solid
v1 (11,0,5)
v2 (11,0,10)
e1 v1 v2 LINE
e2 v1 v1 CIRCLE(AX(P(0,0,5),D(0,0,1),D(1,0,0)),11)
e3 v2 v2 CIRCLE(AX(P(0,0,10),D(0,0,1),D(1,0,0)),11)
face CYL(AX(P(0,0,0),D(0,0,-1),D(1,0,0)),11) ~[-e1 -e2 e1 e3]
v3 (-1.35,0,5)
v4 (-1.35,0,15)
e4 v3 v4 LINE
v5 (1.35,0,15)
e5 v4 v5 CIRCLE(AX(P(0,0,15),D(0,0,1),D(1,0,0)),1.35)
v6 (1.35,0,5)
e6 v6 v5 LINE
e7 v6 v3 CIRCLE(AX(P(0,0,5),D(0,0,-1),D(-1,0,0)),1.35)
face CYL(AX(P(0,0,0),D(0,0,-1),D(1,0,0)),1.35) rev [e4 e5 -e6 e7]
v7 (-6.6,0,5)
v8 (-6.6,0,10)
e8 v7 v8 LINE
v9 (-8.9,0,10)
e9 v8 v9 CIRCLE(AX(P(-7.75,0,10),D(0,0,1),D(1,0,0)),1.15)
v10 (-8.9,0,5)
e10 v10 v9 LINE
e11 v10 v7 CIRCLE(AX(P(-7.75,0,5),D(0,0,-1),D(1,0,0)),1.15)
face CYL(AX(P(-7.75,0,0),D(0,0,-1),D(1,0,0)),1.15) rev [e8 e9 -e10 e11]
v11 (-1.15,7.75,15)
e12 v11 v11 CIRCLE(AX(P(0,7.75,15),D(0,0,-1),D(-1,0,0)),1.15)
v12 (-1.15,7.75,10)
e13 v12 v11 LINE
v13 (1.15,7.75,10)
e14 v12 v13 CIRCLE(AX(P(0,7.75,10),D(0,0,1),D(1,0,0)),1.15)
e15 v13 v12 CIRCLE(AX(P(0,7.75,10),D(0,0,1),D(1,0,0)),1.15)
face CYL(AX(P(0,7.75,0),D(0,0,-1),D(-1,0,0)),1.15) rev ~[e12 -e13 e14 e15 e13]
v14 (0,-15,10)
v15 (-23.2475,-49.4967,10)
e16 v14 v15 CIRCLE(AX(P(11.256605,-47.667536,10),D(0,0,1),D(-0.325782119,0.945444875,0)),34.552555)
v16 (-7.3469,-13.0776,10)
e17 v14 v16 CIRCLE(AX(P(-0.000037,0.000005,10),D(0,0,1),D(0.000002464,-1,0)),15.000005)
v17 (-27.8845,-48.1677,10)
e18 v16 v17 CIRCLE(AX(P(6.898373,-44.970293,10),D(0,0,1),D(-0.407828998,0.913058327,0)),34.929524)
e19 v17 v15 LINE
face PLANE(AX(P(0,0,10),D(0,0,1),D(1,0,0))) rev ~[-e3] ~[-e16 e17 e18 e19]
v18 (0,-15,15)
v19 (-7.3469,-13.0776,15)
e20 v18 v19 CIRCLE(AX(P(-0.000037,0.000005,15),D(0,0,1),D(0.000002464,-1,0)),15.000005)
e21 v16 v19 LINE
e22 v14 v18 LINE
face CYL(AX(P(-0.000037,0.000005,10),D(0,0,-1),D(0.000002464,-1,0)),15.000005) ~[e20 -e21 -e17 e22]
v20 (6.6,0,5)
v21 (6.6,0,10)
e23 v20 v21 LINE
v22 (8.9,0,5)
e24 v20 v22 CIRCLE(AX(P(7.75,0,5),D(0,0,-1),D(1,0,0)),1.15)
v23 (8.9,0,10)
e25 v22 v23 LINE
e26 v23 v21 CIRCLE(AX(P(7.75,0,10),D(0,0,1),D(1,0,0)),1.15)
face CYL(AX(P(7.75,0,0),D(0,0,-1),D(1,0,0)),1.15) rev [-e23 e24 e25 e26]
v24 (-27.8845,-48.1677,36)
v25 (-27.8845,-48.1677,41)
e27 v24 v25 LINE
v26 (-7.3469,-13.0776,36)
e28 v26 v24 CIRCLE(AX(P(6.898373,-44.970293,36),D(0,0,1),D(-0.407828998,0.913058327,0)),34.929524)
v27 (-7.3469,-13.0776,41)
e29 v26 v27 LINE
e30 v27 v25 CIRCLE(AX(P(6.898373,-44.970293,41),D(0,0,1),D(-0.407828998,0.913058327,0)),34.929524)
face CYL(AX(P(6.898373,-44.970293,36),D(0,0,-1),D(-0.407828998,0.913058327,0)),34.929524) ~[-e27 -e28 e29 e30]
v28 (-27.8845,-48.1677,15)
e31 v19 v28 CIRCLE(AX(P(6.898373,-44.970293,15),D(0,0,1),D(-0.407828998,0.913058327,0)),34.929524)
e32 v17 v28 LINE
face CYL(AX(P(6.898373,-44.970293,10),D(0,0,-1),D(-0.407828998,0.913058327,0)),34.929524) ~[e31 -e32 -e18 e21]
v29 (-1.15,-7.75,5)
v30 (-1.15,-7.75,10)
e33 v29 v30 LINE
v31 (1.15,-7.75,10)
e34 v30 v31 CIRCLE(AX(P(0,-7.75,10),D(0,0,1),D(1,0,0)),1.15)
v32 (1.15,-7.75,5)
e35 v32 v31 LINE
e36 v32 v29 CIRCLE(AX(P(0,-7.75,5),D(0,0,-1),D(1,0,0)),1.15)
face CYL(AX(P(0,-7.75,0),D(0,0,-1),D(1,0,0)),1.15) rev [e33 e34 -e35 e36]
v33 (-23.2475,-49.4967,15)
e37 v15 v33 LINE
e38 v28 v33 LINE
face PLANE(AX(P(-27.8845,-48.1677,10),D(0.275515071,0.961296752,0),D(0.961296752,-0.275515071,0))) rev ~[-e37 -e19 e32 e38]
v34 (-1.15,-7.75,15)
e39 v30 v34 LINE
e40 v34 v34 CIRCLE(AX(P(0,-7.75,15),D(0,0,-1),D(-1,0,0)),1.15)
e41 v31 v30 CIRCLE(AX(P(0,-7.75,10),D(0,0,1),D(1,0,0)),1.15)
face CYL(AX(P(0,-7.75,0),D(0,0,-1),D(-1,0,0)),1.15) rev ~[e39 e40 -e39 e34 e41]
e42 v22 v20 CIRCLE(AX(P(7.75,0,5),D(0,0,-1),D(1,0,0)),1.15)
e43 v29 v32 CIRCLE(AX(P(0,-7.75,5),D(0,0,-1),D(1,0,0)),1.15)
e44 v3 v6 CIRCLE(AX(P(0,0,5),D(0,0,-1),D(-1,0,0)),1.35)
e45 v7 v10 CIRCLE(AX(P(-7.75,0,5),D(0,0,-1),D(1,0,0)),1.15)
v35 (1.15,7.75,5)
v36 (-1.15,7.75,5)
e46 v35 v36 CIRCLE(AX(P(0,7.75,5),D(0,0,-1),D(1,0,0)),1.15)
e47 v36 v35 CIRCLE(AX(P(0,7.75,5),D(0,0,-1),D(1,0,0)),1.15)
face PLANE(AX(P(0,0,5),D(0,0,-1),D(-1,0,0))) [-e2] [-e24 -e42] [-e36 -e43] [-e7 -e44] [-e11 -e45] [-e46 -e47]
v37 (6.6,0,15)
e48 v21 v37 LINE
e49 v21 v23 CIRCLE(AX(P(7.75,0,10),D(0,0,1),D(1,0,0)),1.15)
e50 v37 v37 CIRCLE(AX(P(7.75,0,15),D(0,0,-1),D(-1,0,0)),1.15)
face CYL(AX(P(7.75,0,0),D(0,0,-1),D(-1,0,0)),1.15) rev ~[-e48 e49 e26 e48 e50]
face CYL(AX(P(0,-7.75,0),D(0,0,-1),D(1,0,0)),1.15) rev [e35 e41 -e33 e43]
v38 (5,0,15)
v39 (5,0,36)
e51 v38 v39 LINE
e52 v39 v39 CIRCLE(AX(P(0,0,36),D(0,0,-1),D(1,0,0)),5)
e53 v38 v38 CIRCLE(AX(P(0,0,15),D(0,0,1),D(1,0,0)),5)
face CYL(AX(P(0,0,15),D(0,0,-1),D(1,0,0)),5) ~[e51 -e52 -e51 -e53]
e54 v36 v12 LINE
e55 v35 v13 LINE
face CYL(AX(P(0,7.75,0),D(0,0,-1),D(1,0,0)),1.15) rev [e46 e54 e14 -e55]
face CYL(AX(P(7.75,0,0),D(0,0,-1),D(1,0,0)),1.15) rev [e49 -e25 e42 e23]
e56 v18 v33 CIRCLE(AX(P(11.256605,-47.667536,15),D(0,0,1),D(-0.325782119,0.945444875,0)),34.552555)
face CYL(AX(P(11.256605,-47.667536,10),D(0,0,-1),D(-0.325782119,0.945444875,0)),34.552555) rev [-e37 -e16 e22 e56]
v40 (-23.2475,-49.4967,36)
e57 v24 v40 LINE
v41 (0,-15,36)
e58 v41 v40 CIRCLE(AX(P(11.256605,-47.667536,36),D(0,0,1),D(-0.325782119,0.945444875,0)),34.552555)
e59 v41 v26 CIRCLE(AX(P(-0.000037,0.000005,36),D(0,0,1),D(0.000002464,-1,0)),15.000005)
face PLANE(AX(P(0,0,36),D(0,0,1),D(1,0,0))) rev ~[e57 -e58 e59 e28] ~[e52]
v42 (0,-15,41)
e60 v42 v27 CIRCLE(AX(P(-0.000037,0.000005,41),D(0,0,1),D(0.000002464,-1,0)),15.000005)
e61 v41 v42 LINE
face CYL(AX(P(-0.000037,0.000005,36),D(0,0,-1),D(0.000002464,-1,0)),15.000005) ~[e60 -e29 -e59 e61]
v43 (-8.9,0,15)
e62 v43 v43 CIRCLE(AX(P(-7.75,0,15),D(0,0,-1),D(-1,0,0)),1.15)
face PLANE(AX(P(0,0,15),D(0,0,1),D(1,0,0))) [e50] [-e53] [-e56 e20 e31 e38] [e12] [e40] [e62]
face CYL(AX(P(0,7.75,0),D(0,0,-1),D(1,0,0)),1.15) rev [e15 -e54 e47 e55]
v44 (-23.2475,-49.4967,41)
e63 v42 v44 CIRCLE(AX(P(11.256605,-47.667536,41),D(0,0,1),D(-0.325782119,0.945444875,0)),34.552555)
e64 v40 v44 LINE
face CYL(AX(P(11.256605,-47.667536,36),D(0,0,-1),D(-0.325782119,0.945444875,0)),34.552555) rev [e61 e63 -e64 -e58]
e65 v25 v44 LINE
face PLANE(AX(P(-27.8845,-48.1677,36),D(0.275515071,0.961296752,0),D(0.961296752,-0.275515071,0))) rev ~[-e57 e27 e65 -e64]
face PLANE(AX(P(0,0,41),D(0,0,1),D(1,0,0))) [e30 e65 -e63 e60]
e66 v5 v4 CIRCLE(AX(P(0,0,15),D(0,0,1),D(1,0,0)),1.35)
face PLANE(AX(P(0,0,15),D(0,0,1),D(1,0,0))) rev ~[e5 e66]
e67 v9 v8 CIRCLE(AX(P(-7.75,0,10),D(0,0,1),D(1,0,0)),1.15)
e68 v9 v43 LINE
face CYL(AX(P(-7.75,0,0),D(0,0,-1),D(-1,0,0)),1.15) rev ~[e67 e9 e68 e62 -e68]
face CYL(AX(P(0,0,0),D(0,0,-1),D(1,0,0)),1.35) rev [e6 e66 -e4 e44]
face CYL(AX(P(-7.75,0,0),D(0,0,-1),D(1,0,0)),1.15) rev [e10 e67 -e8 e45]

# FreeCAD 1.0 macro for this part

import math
import FreeCAD as App
import Part
import Sketcher
from FreeCAD import Vector

doc = App.newDocument("Part")
body = doc.addObject("PartDesign::Body", "Body")

# Sketch on XY plane
sketch1 = body.newObject("Sketcher::SketchObject", "Sketch")
sketch1.AttachmentSupport = (doc.getObject("XY_Plane"), [""])
sketch1.MapMode = "FlatFace"
sketch1.addGeometry(Part.Circle(Vector(0, 0, 0), Vector(0, 0, 1), 11), False)
sketch1.addGeometry(Part.Circle(Vector(0, -7.8, 0), Vector(0, 0, 1), 1.1), False)
sketch1.addGeometry(Part.Circle(Vector(-7.8, 0, 0), Vector(0, 0, 1), 1.1), False)
sketch1.addGeometry(Part.Circle(Vector(0, 0, 0), Vector(0, 0, 1), 1.4), False)
sketch1.addGeometry(Part.Circle(Vector(7.8, 0, 0), Vector(0, 0, 1), 1.1), False)
sketch1.addGeometry(Part.Circle(Vector(0, 7.8, 0), Vector(0, 0, 1), 1.1), False)
sketch1.addConstraint(Sketcher.Constraint("Coincident", 0, 3, -1, 1))
sketch1.addConstraint(Sketcher.Constraint("Coincident", 3, 3, -1, 1))
sketch1.addConstraint(Sketcher.Constraint("Equal", 1, 2))
sketch1.addConstraint(Sketcher.Constraint("Equal", 2, 4))
sketch1.addConstraint(Sketcher.Constraint("Equal", 4, 5))
sketch1.addConstraint(Sketcher.Constraint("Symmetric", 2, 3, 4, 3, -1, 1))
sketch1.addConstraint(Sketcher.Constraint("Symmetric", 1, 3, 5, 3, -1, 1))
sketch1.addConstraint(Sketcher.Constraint("PointOnObject", 1, 3, -2))
sketch1.addConstraint(Sketcher.Constraint("PointOnObject", 2, 3, -1))
sketch1.addConstraint(Sketcher.Constraint("Diameter", 0, 22.0))
sketch1.addConstraint(Sketcher.Constraint("Diameter", 1, 2.3))
sketch1.addConstraint(Sketcher.Constraint("Diameter", 3, 2.7))
sketch1.addConstraint(Sketcher.Constraint("DistanceX", 2, 3, 4, 3, 15.5))
sketch1.addConstraint(Sketcher.Constraint("DistanceY", 1, 3, 5, 3, 15.5))
pad1 = body.newObject("PartDesign::Pad", "Pad")
pad1.Profile = sketch1
pad1.Length = 10

# Sketch on XY plane
sketch2 = body.newObject("Sketcher::SketchObject", "Sketch001")
sketch2.AttachmentSupport = (doc.getObject("XY_Plane"), [""])
sketch2.MapMode = "FlatFace"
sketch2.AttachmentOffset = App.Placement(Vector(0, 0, 10), App.Rotation())
sketch2.addGeometry(Part.ArcOfCircle(Part.Circle(Vector(11.3, -47.7, 0), Vector(0, 0, 1), 34.6), math.radians(109), math.radians(183)), False)
sketch2.addGeometry(Part.ArcOfCircle(Part.Circle(Vector(0, 0, 0), Vector(0, 0, 1), 15), math.radians(-90), math.radians(241)), False)
sketch2.addGeometry(Part.ArcOfCircle(Part.Circle(Vector(6.9, -45, 0), Vector(0, 0, 1), 34.9), math.radians(114), math.radians(185)), False)
sketch2.addGeometry(Part.LineSegment(Vector(-27.9, -48.2, 0), Vector(-23.2, -49.5, 0)), False)
sketch2.addGeometry(Part.Circle(Vector(0, 0, 0), Vector(0, 0, 1), 1.4), False)
sketch2.addConstraint(Sketcher.Constraint("Coincident", 0, 1, 1, 1))
sketch2.addConstraint(Sketcher.Constraint("Coincident", 1, 2, 2, 1))
sketch2.addConstraint(Sketcher.Constraint("Coincident", 2, 2, 3, 1))
sketch2.addConstraint(Sketcher.Constraint("Coincident", 3, 2, 0, 2))
sketch2.addConstraint(Sketcher.Constraint("Coincident", 1, 3, -1, 1))
sketch2.addConstraint(Sketcher.Constraint("Coincident", 4, 3, -1, 1))
sketch2.addConstraint(Sketcher.Constraint("PointOnObject", 0, 1, -2))
sketch2.addConstraint(Sketcher.Constraint("Radius", 1, 15.0))
sketch2.addConstraint(Sketcher.Constraint("Diameter", 4, 2.7))
sketch2.addConstraint(Sketcher.Constraint("Radius", 0, 34.5524))
sketch2.addConstraint(Sketcher.Constraint("Radius", 2, 34.9293))
sketch2.addConstraint(Sketcher.Constraint("DistanceY", 2, 3, -1, 1, 44.97))
sketch2.addConstraint(Sketcher.Constraint("DistanceY", 2, 2, 1, 2, 35.09))
sketch2.addConstraint(Sketcher.Constraint("DistanceX", 1, 2, -1, 1, 7.347))
sketch2.addConstraint(Sketcher.Constraint("DistanceX", 2, 2, 0, 3, 39.141))
sketch2.addConstraint(Sketcher.Constraint("DistanceX", 2, 2, 3, 2, 4.637))
pad2 = body.newObject("PartDesign::Pad", "Pad001")
pad2.Profile = sketch2
pad2.Length = 5

# Sketch on XY plane
sketch3 = body.newObject("Sketcher::SketchObject", "Sketch002")
sketch3.AttachmentSupport = (doc.getObject("XY_Plane"), [""])
sketch3.MapMode = "FlatFace"
sketch3.addGeometry(Part.Circle(Vector(0, 0, 0), Vector(0, 0, 1), 1.4), False)
sketch3.addGeometry(Part.Circle(Vector(-7.8, 0, 0), Vector(0, 0, 1), 1.1), False)
sketch3.addGeometry(Part.Circle(Vector(0, 7.8, 0), Vector(0, 0, 1), 1.1), False)
sketch3.addGeometry(Part.Circle(Vector(7.8, 0, 0), Vector(0, 0, 1), 1.1), False)
sketch3.addGeometry(Part.Circle(Vector(0, -7.8, 0), Vector(0, 0, 1), 1.1), False)
sketch3.addConstraint(Sketcher.Constraint("Coincident", 0, 3, -1, 1))
sketch3.addConstraint(Sketcher.Constraint("Equal", 1, 2))
sketch3.addConstraint(Sketcher.Constraint("Equal", 2, 3))
sketch3.addConstraint(Sketcher.Constraint("Equal", 3, 4))
sketch3.addConstraint(Sketcher.Constraint("Symmetric", 1, 3, 3, 3, -1, 1))
sketch3.addConstraint(Sketcher.Constraint("Symmetric", 2, 3, 4, 3, -1, 1))
sketch3.addConstraint(Sketcher.Constraint("PointOnObject", 1, 3, -1))
sketch3.addConstraint(Sketcher.Constraint("PointOnObject", 2, 3, -2))
sketch3.addConstraint(Sketcher.Constraint("Diameter", 0, 2.7))
sketch3.addConstraint(Sketcher.Constraint("Diameter", 1, 2.3))
sketch3.addConstraint(Sketcher.Constraint("DistanceX", 1, 3, 3, 3, 15.5))
sketch3.addConstraint(Sketcher.Constraint("DistanceY", 4, 3, 2, 3, 15.5))
pocket1 = body.newObject("PartDesign::Pocket", "Pocket")
pocket1.Profile = sketch3
pocket1.Length = 46.25
pocket1.Reversed = True

# Sketch on XY plane
sketch4 = body.newObject("Sketcher::SketchObject", "Sketch003")
sketch4.AttachmentSupport = (doc.getObject("XY_Plane"), [""])
sketch4.MapMode = "FlatFace"
sketch4.AttachmentOffset = App.Placement(Vector(0, 0, 15), App.Rotation())
sketch4.addGeometry(Part.Circle(Vector(0, 0, 0), Vector(0, 0, 1), 5), False)
sketch4.addConstraint(Sketcher.Constraint("Coincident", 0, 3, -1, 1))
sketch4.addConstraint(Sketcher.Constraint("Diameter", 0, 10.0))
pad3 = body.newObject("PartDesign::Pad", "Pad002")
pad3.Profile = sketch4
pad3.Length = 26
doc.recompute()

linearpattern = body.newObject("PartDesign::LinearPattern", "LinearPattern")
linearpattern.Originals = [pad2]
linearpattern.Direction = (doc.getObject("Z_Axis"), [""])
linearpattern.Mode = "offset"
linearpattern.Offset = 26
linearpattern.Occurrences = 2
body.Tip = linearpattern

# Sketch on XY plane
sketch5 = body.newObject("Sketcher::SketchObject", "Sketch004")
sketch5.AttachmentSupport = (doc.getObject("XY_Plane"), [""])
sketch5.MapMode = "FlatFace"
sketch5.addGeometry(Part.Circle(Vector(0, 0, 0), Vector(0, 0, 1), 11), False)
sketch5.addGeometry(Part.Circle(Vector(0, 0, 0), Vector(0, 0, 1), 1.4), False)
sketch5.addConstraint(Sketcher.Constraint("Coincident", 0, 3, -1, 1))
sketch5.addConstraint(Sketcher.Constraint("Coincident", 1, 3, -1, 1))
sketch5.addConstraint(Sketcher.Constraint("Diameter", 0, 22.0))
sketch5.addConstraint(Sketcher.Constraint("Diameter", 1, 2.7))
pocket2 = body.newObject("PartDesign::Pocket", "Pocket001")
pocket2.Profile = sketch5
pocket2.Length = 5
pocket2.Reversed = True

doc.recompute()
